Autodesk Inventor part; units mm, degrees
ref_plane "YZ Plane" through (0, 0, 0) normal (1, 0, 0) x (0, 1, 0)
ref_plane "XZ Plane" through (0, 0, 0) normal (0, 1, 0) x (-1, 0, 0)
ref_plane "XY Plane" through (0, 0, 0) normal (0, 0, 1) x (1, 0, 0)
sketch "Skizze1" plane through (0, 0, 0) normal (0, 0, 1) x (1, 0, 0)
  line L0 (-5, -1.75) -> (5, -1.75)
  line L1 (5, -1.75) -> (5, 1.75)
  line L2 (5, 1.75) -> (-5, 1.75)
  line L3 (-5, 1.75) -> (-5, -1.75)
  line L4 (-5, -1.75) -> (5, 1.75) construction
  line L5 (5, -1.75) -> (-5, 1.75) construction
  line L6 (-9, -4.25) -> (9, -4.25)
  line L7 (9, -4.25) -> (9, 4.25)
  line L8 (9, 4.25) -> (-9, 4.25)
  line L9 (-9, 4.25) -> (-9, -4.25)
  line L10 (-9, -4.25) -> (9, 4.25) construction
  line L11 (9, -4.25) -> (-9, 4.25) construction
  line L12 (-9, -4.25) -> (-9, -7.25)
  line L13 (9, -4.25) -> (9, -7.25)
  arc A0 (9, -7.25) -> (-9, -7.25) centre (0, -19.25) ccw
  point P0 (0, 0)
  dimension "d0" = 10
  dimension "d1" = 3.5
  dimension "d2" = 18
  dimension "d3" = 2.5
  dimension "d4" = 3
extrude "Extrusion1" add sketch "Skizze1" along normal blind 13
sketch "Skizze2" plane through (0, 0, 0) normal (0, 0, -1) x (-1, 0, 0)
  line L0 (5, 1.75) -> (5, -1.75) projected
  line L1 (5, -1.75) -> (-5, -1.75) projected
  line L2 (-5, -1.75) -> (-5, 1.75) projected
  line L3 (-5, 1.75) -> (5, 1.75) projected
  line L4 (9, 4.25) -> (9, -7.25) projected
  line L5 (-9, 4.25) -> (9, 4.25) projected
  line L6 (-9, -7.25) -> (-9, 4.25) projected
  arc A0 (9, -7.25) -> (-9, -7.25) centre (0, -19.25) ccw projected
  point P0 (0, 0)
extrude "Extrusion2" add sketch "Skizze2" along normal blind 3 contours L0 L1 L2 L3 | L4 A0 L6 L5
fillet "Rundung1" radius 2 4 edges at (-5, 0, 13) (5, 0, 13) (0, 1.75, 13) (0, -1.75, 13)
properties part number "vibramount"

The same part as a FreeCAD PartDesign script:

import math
import FreeCAD as App
import Part
import Sketcher
Q = App.Units.Quantity


def edges_at(feature, points):
    """Names of the edges that pass closest to the given points."""
    edges = feature.Shape.Edges
    near = lambda p: min(range(len(edges)), key=lambda i: edges[i].distToShape(Part.Vertex(*p))[0])
    return sorted({f"Edge{near(p) + 1}" for p in points})

doc = App.newDocument("Part")
params = doc.addObject("Spreadsheet::Sheet", "Params")
for row, (alias, value) in enumerate([
    ("sketch1_width", "18 mm"),
    ("sketch1_width2", "10 mm"),
    ("sketch1_height", "3.5 mm"),
    ("sketch1_radius", "15 mm"),
    ("sketch1_height2", "11.5 mm"),
    ("pad1_length", "13 mm"),
    ("sketch2_radius", "15 mm"),
    ("sketch2_width", "18 mm"),
    ("sketch2_height", "11.5 mm"),
    ("pad2_length", "3 mm"),
    ("fillet_radius", "2 mm"),
], start=1):
    params.set(f"A{row}", alias)
    params.set(f"B{row}", "=" + value)
    params.setAlias(f"B{row}", alias)

body = doc.addObject("PartDesign::Body", "Body")

# Sketch on XY plane
sketch1 = body.newObject("Sketcher::SketchObject", "Sketch")
sketch1.AttachmentSupport = (doc.getObject("XY_Plane"), [""])
sketch1.MapMode = "FlatFace"
sketch1.addGeometry(Part.LineSegment(App.Vector(-9, 4.2, 0), App.Vector(-9, -7.2, 0)), False)
sketch1.addGeometry(Part.ArcOfCircle(Part.Circle(App.Vector(0, -19.2, 0), App.Vector(0, 0, 1), 15), math.radians(53), math.radians(127)), False)
sketch1.addGeometry(Part.LineSegment(App.Vector(9, -7.2, 0), App.Vector(9, 4.2, 0)), False)
sketch1.addGeometry(Part.LineSegment(App.Vector(9, 4.2, 0), App.Vector(-9, 4.2, 0)), False)
sketch1.addGeometry(Part.LineSegment(App.Vector(5, -1.8, 0), App.Vector(-5, -1.8, 0)), False)
sketch1.addGeometry(Part.LineSegment(App.Vector(-5, -1.8, 0), App.Vector(-5, 1.8, 0)), False)
sketch1.addGeometry(Part.LineSegment(App.Vector(-5, 1.8, 0), App.Vector(5, 1.8, 0)), False)
sketch1.addGeometry(Part.LineSegment(App.Vector(5, 1.8, 0), App.Vector(5, -1.8, 0)), False)
sketch1.addConstraint(Sketcher.Constraint("Coincident", 0, 2, 1, 2))
sketch1.addConstraint(Sketcher.Constraint("Coincident", 1, 1, 2, 1))
sketch1.addConstraint(Sketcher.Constraint("Coincident", 2, 2, 3, 1))
sketch1.addConstraint(Sketcher.Constraint("Coincident", 3, 2, 0, 1))
sketch1.addConstraint(Sketcher.Constraint("Coincident", 4, 2, 5, 1))
sketch1.addConstraint(Sketcher.Constraint("Coincident", 5, 2, 6, 1))
sketch1.addConstraint(Sketcher.Constraint("Coincident", 6, 2, 7, 1))
sketch1.addConstraint(Sketcher.Constraint("Coincident", 7, 2, 4, 1))
sketch1.addConstraint(Sketcher.Constraint("Vertical", 0))
sketch1.addConstraint(Sketcher.Constraint("Vertical", 2))
sketch1.addConstraint(Sketcher.Constraint("Horizontal", 3))
sketch1.addConstraint(Sketcher.Constraint("Horizontal", 4))
sketch1.addConstraint(Sketcher.Constraint("Vertical", 5))
sketch1.addConstraint(Sketcher.Constraint("Horizontal", 6))
sketch1.addConstraint(Sketcher.Constraint("Vertical", 7))
sketch1.addConstraint(Sketcher.Constraint("Symmetric", 4, 2, 6, 2, -1, 1))
sketch1.addConstraint(Sketcher.Constraint("Symmetric", 0, 2, 1, 1, -2))
sketch1.addConstraint(Sketcher.Constraint("DistanceX", 3, 2, 3, 1, Q("18 mm")))
sketch1.addConstraint(Sketcher.Constraint("DistanceX", 4, 2, 4, 1, Q("10 mm")))
sketch1.addConstraint(Sketcher.Constraint("DistanceY", 5, 1, 5, 2, Q("3.5 mm")))
sketch1.addConstraint(Sketcher.Constraint("Radius", 1, Q("15 mm")))
sketch1.addConstraint(Sketcher.Constraint("DistanceY", 5, 2, 3, 2, Q("2.5 mm")))
sketch1.addConstraint(Sketcher.Constraint("DistanceY", 0, 2, 0, 1, Q("11.5 mm")))
sketch1.setExpression("Constraints[17]", "Params.sketch1_width")
sketch1.setExpression("Constraints[18]", "Params.sketch1_width2")
sketch1.setExpression("Constraints[19]", "Params.sketch1_height")
sketch1.setExpression("Constraints[20]", "Params.sketch1_radius")
sketch1.setExpression("Constraints[22]", "Params.sketch1_height2")
pad1 = body.newObject("PartDesign::Pad", "Pad")
pad1.Profile = sketch1
pad1.setExpression("Length", "Params.pad1_length")

# Sketch on XY plane
sketch2 = body.newObject("Sketcher::SketchObject", "Sketch001")
sketch2.AttachmentSupport = (doc.getObject("XY_Plane"), [""])
sketch2.MapMode = "FlatFace"
sketch2.addGeometry(Part.LineSegment(App.Vector(-9, -7, 0), App.Vector(-9, 4, 0)), False)
sketch2.addGeometry(Part.LineSegment(App.Vector(-9, 4, 0), App.Vector(9, 4, 0)), False)
sketch2.addGeometry(Part.LineSegment(App.Vector(9, 4, 0), App.Vector(9, -7, 0)), False)
sketch2.addGeometry(Part.ArcOfCircle(Part.Circle(App.Vector(0, -19, 0), App.Vector(0, 0, 1), 15), math.radians(53), math.radians(127)), False)
sketch2.addConstraint(Sketcher.Constraint("Coincident", 0, 2, 1, 1))
sketch2.addConstraint(Sketcher.Constraint("Coincident", 1, 2, 2, 1))
sketch2.addConstraint(Sketcher.Constraint("Coincident", 2, 2, 3, 1))
sketch2.addConstraint(Sketcher.Constraint("Coincident", 3, 2, 0, 1))
sketch2.addConstraint(Sketcher.Constraint("Vertical", 0))
sketch2.addConstraint(Sketcher.Constraint("Horizontal", 1))
sketch2.addConstraint(Sketcher.Constraint("Vertical", 2))
sketch2.addConstraint(Sketcher.Constraint("Symmetric", 2, 2, 3, 2, -2))
sketch2.addConstraint(Sketcher.Constraint("Radius", 3, Q("15 mm")))
sketch2.addConstraint(Sketcher.Constraint("DistanceX", 1, 1, 1, 2, Q("18 mm")))
sketch2.addConstraint(Sketcher.Constraint("DistanceY", 0, 1, 0, 2, Q("11.5 mm")))
sketch2.addConstraint(Sketcher.Constraint("DistanceY", 3, 3, -1, 1, Q("19.25 mm")))
sketch2.setExpression("Constraints[8]", "Params.sketch2_radius")
sketch2.setExpression("Constraints[9]", "Params.sketch2_width")
sketch2.setExpression("Constraints[10]", "Params.sketch2_height")
pad2 = body.newObject("PartDesign::Pad", "Pad001")
pad2.Profile = sketch2
pad2.setExpression("Length", "Params.pad2_length")
pad2.Reversed = True
doc.recompute()

fillet = body.newObject("PartDesign::Fillet", "Fillet")
fillet.Base = (pad2, edges_at(pad2, [
    (-5, 0, 13),
    (5, 0, 13),
    (0, 1.75, 13),
    (0, -1.75, 13),
]))
fillet.setExpression("Radius", "Params.fillet_radius")

doc.recompute()
